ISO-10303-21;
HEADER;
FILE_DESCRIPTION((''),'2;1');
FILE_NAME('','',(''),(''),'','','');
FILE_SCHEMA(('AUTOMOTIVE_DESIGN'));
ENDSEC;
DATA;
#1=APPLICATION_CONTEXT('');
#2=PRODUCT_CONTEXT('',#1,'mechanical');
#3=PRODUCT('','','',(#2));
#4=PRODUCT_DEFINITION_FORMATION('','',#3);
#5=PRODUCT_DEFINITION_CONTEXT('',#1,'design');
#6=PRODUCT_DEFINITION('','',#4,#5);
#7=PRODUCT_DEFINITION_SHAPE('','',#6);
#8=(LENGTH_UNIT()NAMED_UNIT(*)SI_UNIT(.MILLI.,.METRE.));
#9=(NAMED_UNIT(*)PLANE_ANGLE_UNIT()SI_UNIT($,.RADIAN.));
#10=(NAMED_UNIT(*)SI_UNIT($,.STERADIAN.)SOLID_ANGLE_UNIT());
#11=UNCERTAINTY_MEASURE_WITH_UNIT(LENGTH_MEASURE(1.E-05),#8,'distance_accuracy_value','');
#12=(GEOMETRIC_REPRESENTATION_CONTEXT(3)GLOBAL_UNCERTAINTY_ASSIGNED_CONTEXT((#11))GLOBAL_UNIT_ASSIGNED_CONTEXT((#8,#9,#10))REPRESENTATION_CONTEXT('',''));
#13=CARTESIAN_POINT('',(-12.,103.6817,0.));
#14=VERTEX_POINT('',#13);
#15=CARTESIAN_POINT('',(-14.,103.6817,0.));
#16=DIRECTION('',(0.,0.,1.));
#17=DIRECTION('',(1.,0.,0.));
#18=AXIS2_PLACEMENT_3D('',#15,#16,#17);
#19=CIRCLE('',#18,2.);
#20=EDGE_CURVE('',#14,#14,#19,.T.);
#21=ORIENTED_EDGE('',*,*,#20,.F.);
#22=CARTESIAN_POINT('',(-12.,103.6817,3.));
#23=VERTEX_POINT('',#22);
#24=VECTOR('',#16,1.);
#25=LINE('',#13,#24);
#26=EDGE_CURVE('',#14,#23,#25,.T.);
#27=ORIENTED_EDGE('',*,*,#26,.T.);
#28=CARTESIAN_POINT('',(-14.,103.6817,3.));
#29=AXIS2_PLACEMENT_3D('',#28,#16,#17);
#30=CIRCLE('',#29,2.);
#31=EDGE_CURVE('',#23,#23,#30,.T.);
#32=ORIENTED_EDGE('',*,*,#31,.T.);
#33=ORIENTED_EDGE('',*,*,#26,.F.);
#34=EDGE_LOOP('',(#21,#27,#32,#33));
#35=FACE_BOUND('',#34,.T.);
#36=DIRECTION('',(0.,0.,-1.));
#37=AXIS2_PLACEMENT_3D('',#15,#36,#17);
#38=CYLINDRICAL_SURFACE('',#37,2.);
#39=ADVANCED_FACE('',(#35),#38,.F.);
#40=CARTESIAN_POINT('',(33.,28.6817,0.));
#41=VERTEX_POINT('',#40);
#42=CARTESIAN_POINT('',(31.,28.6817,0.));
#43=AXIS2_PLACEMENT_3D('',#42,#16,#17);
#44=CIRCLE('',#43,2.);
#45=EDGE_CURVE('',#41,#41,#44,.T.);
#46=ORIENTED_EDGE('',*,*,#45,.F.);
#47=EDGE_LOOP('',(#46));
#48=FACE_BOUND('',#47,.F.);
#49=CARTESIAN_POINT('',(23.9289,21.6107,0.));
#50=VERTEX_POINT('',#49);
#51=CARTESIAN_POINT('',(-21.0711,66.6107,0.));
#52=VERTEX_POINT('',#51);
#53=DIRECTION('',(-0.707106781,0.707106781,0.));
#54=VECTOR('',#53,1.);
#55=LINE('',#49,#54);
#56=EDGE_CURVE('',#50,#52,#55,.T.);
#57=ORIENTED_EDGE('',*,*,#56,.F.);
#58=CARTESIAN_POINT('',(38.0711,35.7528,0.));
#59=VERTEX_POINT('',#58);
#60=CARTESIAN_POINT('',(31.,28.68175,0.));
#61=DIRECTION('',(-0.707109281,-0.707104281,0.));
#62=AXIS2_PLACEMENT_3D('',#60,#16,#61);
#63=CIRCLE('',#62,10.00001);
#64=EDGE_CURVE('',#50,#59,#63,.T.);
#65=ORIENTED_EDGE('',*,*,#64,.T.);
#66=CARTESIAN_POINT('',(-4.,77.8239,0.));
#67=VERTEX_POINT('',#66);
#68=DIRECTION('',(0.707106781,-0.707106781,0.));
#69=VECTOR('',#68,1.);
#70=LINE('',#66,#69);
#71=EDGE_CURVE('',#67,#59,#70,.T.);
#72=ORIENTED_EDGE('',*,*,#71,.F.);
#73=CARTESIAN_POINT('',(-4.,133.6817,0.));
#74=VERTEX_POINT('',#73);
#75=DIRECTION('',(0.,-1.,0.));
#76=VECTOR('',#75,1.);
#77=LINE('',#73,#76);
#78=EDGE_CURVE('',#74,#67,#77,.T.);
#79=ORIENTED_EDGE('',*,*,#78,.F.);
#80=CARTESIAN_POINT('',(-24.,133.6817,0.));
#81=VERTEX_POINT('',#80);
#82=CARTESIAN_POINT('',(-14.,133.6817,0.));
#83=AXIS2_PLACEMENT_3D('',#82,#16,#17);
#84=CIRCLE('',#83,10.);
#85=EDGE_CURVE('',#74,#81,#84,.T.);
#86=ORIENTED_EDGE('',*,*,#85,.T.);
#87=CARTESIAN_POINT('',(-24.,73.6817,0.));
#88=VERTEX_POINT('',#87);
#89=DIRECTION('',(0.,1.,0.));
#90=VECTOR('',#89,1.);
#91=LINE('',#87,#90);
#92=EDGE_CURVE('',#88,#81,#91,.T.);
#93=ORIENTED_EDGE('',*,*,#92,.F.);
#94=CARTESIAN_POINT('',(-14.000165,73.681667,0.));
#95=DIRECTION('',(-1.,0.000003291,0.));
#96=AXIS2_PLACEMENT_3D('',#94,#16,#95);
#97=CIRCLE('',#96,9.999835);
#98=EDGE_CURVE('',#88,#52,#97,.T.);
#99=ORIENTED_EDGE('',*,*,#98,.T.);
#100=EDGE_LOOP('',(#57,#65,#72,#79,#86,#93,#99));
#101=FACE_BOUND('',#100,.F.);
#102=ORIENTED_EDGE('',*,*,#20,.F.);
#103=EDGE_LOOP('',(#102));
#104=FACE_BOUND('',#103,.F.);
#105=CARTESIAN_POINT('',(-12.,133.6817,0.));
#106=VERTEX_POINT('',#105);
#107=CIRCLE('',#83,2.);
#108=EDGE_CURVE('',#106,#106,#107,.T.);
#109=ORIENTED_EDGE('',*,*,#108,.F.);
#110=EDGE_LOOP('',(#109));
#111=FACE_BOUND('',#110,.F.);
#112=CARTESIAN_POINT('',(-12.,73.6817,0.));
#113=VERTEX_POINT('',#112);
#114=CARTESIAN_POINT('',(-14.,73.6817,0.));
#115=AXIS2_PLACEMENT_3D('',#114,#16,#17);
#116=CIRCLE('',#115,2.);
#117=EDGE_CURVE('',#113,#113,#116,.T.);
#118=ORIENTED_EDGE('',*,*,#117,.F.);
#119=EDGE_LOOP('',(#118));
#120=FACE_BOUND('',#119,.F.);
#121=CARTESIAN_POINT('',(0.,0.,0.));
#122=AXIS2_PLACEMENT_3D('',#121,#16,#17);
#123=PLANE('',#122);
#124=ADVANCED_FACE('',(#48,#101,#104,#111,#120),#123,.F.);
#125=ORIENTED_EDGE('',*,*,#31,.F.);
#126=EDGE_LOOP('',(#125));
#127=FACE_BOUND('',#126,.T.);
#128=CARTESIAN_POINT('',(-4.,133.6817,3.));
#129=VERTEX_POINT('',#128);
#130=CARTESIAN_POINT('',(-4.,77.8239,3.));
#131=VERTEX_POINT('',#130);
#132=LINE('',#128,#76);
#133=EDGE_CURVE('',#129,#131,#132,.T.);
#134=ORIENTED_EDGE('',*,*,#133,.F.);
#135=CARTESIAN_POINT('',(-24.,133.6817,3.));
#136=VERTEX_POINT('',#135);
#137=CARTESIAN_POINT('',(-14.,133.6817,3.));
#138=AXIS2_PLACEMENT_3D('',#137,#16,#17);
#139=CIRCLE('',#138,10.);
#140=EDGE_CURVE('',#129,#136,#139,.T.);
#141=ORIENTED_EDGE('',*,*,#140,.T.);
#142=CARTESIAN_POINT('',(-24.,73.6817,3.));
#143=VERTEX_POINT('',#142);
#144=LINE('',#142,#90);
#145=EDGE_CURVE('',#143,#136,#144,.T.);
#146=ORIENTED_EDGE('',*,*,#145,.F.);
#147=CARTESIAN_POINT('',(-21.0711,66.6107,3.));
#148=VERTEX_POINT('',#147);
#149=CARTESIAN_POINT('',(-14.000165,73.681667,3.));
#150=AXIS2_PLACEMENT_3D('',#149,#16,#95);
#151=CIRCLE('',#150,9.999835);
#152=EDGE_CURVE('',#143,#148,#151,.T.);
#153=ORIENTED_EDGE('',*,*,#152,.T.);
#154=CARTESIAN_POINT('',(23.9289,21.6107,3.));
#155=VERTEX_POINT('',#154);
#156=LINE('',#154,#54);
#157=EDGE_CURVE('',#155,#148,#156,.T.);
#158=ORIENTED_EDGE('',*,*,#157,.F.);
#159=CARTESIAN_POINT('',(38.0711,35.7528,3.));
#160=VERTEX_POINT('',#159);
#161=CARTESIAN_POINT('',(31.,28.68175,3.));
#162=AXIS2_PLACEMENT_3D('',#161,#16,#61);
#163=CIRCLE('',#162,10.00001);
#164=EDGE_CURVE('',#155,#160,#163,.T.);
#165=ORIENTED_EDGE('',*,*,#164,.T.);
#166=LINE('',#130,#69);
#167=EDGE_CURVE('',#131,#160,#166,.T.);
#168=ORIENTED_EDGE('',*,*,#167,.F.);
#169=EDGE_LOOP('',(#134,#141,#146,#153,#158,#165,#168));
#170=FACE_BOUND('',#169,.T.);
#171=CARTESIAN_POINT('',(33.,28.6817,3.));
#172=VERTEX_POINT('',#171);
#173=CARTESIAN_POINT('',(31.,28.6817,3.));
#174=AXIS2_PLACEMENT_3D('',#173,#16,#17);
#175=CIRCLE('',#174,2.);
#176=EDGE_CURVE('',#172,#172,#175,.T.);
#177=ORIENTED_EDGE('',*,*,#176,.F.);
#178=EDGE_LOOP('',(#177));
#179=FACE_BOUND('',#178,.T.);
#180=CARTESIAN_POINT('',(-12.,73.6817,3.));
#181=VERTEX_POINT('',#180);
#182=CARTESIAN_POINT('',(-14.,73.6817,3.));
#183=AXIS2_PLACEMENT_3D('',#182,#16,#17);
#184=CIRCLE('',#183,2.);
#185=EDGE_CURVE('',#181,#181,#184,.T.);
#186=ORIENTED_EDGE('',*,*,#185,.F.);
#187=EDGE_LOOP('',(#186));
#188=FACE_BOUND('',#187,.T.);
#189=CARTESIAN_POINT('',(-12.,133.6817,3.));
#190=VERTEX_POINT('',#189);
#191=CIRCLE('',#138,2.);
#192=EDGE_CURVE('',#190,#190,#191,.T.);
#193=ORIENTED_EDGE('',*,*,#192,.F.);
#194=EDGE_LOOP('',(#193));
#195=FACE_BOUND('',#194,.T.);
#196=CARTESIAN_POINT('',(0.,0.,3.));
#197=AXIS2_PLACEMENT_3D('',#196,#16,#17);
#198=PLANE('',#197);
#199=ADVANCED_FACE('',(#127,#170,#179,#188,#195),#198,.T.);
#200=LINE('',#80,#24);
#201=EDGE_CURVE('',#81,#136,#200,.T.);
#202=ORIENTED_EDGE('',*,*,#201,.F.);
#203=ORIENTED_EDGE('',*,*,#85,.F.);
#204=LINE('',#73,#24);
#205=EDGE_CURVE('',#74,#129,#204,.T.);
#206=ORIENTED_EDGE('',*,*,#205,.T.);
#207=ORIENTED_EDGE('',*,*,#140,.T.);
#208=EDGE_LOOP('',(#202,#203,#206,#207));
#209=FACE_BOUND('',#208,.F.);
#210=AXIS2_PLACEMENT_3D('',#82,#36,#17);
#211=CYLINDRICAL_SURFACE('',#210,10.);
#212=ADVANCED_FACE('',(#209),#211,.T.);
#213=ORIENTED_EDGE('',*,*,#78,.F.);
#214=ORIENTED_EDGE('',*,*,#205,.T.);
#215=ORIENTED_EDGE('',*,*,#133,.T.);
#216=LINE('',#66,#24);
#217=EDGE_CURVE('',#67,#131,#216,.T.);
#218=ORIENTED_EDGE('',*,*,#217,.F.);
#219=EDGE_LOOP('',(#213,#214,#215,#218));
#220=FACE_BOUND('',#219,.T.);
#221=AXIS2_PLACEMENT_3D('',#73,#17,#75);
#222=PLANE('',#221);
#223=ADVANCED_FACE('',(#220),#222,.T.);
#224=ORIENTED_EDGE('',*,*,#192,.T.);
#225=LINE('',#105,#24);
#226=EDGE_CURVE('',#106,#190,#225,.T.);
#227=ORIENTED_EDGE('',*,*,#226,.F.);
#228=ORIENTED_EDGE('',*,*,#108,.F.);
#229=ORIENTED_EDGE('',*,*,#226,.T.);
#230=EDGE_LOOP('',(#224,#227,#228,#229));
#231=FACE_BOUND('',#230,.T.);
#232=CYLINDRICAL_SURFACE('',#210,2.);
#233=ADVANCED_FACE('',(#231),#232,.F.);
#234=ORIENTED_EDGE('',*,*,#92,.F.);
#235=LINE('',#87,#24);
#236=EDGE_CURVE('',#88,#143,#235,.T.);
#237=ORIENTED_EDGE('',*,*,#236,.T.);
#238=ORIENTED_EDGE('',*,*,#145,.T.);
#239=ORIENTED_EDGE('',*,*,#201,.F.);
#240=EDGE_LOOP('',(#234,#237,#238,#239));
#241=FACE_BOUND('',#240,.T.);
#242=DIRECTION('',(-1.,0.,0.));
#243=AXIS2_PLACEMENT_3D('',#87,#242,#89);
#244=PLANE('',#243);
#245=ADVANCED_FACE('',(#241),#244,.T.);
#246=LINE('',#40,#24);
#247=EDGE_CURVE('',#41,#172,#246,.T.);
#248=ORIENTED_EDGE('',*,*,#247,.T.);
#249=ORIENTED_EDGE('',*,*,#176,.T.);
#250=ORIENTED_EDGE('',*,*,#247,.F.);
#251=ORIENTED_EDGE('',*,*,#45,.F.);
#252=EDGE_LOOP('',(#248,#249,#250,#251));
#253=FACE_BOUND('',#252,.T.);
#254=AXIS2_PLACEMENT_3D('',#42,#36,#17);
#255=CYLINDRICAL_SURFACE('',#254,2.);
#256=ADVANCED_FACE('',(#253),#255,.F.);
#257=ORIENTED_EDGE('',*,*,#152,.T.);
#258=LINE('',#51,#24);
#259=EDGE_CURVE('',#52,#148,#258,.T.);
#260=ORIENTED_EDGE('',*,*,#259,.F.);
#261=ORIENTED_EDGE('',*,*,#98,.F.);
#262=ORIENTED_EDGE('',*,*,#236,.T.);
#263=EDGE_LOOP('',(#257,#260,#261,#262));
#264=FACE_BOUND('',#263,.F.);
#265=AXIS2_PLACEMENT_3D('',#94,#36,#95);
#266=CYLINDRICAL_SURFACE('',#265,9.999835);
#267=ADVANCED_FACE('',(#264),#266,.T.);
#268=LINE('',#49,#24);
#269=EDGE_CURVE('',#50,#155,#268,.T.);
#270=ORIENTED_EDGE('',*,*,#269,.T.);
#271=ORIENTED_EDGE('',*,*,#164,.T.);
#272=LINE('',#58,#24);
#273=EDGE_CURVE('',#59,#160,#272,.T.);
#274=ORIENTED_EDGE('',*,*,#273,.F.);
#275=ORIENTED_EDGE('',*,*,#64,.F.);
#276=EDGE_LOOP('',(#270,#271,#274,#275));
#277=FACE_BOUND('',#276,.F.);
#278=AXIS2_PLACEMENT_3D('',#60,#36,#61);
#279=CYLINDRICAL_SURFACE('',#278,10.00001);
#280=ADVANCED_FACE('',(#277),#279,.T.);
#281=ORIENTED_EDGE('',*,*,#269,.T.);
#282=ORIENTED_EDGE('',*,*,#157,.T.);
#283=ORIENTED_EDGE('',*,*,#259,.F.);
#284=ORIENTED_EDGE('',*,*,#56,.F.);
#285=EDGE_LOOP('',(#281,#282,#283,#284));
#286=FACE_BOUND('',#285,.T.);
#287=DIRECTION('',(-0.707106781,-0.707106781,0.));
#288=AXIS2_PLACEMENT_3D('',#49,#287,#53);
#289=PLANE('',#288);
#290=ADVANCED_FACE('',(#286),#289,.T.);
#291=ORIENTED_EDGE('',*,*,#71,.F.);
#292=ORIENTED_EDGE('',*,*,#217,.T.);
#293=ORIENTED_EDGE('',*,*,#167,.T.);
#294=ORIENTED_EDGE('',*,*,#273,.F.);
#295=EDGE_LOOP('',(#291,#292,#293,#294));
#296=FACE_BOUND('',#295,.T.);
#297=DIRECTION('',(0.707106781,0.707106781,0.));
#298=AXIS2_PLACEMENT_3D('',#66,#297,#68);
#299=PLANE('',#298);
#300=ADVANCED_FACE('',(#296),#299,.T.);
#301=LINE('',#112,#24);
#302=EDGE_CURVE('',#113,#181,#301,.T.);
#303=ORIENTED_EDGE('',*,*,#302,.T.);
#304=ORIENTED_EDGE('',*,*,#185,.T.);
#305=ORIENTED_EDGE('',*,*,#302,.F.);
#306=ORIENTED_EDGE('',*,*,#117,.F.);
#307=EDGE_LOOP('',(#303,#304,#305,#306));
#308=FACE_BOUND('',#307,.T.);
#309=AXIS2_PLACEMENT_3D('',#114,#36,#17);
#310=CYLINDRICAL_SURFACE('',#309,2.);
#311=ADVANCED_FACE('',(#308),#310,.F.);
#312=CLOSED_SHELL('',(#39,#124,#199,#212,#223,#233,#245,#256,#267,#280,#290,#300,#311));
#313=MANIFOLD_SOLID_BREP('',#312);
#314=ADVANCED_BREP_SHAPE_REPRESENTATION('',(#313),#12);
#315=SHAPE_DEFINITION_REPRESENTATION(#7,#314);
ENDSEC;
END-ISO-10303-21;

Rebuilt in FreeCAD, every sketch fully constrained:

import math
import FreeCAD as App
import Part
import Sketcher

V = App.Vector
Q = App.Units.Quantity

doc = App.newDocument("Part")
params = doc.addObject("Spreadsheet::Sheet", "Params")
for row, (alias, value) in enumerate([
    ("sketch1_diameter", "4 mm"),
    ("sketch1_radius", "10 mm"),
    ("sketch1_height", "60 mm"),
    ("pad1_length", "3 mm"),
], start=1):
    params.set(f"A{row}", alias)
    params.set(f"B{row}", "=" + value)
    params.setAlias(f"B{row}", alias)

body = doc.addObject("PartDesign::Body", "Body")

sketch1 = doc.addObject("Sketcher::SketchObject", "Sketch")
body.addObject(sketch1)
sketch1.AttachmentSupport = (doc.XY_Plane, [""])
sketch1.MapMode = "FlatFace"
sketch1.addGeometry(Part.LineSegment(V(-24, 133.7, 0), V(-24, 73.7, 0)), False)
sketch1.addGeometry(Part.ArcOfCircle(Part.Circle(V(-14, 73.7, 0), V(0, 0, 1), 10), math.radians(180), math.radians(225)), False)
sketch1.addGeometry(Part.LineSegment(V(-21.1, 66.6, 0), V(23.9, 21.6, 0)), False)
sketch1.addGeometry(Part.ArcOfCircle(Part.Circle(V(31, 28.7, 0), V(0, 0, 1), 10), math.radians(-135), math.radians(45)), False)
sketch1.addGeometry(Part.LineSegment(V(38.1, 35.8, 0), V(-4, 77.8, 0)), False)
sketch1.addGeometry(Part.LineSegment(V(-4, 77.8, 0), V(-4, 133.7, 0)), False)
sketch1.addGeometry(Part.ArcOfCircle(Part.Circle(V(-14, 133.7, 0), V(0, 0, 1), 10), math.radians(0), math.radians(180)), False)
sketch1.addGeometry(Part.Circle(V(-14, 73.7, 0), V(0, 0, 1), 2), False)
sketch1.addGeometry(Part.Circle(V(31, 28.7, 0), V(0, 0, 1), 2), False)
sketch1.addGeometry(Part.Circle(V(-14, 103.7, 0), V(0, 0, 1), 2), False)
sketch1.addGeometry(Part.Circle(V(-14, 133.7, 0), V(0, 0, 1), 2), False)
sketch1.addConstraint(Sketcher.Constraint("Tangent", 0, 2, 1, 1))
sketch1.addConstraint(Sketcher.Constraint("Tangent", 1, 2, 2, 1))
sketch1.addConstraint(Sketcher.Constraint("Tangent", 2, 2, 3, 1))
sketch1.addConstraint(Sketcher.Constraint("Tangent", 3, 2, 4, 1))
sketch1.addConstraint(Sketcher.Constraint("Coincident", 4, 2, 5, 1))
sketch1.addConstraint(Sketcher.Constraint("Tangent", 5, 2, 6, 1))
sketch1.addConstraint(Sketcher.Constraint("Tangent", 6, 2, 0, 1))
sketch1.addConstraint(Sketcher.Constraint("Vertical", 0))
sketch1.addConstraint(Sketcher.Constraint("Vertical", 5))
sketch1.addConstraint(Sketcher.Constraint("Coincident", 7, 3, 1, 3))
sketch1.addConstraint(Sketcher.Constraint("Coincident", 8, 3, 3, 3))
sketch1.addConstraint(Sketcher.Constraint("Coincident", 10, 3, 6, 3))
sketch1.addConstraint(Sketcher.Constraint("Equal", 1, 3))
sketch1.addConstraint(Sketcher.Constraint("Equal", 3, 6))
sketch1.addConstraint(Sketcher.Constraint("Equal", 7, 8))
sketch1.addConstraint(Sketcher.Constraint("Equal", 8, 9))
sketch1.addConstraint(Sketcher.Constraint("Equal", 9, 10))
sketch1.addConstraint(Sketcher.Constraint("Parallel", 2, 4))
sketch1.addConstraint(Sketcher.Constraint("Vertical", 7, 3, 9, 3))
sketch1.addConstraint(Sketcher.Constraint("Diameter", 7, 4.0))
sketch1.addConstraint(Sketcher.Constraint("Radius", 1, 10.0))
sketch1.addConstraint(Sketcher.Constraint("DistanceY", 0, 2, 0, 1, 60.0))
sketch1.addConstraint(Sketcher.Constraint("Angle", 2, Q("-45 deg")))
sketch1.addConstraint(Sketcher.Constraint("DistanceX", 0, 2, -1, 1, 24.0))
sketch1.addConstraint(Sketcher.Constraint("DistanceX", 1, 3, 3, 3, 45.0))
sketch1.addConstraint(Sketcher.Constraint("DistanceY", 3, 3, 9, 3, 75.0))
sketch1.addConstraint(Sketcher.Constraint("DistanceY", -1, 1, 4, 2, 77.824))
sketch1.setExpression("Constraints[19]", "Params.sketch1_diameter")
sketch1.setExpression("Constraints[20]", "Params.sketch1_radius")
sketch1.setExpression("Constraints[21]", "Params.sketch1_height")
pad1 = doc.addObject("PartDesign::Pad", "Pad")
body.addObject(pad1)
pad1.Profile = sketch1
pad1.setExpression("Length", "Params.pad1_length")

doc.recompute()
